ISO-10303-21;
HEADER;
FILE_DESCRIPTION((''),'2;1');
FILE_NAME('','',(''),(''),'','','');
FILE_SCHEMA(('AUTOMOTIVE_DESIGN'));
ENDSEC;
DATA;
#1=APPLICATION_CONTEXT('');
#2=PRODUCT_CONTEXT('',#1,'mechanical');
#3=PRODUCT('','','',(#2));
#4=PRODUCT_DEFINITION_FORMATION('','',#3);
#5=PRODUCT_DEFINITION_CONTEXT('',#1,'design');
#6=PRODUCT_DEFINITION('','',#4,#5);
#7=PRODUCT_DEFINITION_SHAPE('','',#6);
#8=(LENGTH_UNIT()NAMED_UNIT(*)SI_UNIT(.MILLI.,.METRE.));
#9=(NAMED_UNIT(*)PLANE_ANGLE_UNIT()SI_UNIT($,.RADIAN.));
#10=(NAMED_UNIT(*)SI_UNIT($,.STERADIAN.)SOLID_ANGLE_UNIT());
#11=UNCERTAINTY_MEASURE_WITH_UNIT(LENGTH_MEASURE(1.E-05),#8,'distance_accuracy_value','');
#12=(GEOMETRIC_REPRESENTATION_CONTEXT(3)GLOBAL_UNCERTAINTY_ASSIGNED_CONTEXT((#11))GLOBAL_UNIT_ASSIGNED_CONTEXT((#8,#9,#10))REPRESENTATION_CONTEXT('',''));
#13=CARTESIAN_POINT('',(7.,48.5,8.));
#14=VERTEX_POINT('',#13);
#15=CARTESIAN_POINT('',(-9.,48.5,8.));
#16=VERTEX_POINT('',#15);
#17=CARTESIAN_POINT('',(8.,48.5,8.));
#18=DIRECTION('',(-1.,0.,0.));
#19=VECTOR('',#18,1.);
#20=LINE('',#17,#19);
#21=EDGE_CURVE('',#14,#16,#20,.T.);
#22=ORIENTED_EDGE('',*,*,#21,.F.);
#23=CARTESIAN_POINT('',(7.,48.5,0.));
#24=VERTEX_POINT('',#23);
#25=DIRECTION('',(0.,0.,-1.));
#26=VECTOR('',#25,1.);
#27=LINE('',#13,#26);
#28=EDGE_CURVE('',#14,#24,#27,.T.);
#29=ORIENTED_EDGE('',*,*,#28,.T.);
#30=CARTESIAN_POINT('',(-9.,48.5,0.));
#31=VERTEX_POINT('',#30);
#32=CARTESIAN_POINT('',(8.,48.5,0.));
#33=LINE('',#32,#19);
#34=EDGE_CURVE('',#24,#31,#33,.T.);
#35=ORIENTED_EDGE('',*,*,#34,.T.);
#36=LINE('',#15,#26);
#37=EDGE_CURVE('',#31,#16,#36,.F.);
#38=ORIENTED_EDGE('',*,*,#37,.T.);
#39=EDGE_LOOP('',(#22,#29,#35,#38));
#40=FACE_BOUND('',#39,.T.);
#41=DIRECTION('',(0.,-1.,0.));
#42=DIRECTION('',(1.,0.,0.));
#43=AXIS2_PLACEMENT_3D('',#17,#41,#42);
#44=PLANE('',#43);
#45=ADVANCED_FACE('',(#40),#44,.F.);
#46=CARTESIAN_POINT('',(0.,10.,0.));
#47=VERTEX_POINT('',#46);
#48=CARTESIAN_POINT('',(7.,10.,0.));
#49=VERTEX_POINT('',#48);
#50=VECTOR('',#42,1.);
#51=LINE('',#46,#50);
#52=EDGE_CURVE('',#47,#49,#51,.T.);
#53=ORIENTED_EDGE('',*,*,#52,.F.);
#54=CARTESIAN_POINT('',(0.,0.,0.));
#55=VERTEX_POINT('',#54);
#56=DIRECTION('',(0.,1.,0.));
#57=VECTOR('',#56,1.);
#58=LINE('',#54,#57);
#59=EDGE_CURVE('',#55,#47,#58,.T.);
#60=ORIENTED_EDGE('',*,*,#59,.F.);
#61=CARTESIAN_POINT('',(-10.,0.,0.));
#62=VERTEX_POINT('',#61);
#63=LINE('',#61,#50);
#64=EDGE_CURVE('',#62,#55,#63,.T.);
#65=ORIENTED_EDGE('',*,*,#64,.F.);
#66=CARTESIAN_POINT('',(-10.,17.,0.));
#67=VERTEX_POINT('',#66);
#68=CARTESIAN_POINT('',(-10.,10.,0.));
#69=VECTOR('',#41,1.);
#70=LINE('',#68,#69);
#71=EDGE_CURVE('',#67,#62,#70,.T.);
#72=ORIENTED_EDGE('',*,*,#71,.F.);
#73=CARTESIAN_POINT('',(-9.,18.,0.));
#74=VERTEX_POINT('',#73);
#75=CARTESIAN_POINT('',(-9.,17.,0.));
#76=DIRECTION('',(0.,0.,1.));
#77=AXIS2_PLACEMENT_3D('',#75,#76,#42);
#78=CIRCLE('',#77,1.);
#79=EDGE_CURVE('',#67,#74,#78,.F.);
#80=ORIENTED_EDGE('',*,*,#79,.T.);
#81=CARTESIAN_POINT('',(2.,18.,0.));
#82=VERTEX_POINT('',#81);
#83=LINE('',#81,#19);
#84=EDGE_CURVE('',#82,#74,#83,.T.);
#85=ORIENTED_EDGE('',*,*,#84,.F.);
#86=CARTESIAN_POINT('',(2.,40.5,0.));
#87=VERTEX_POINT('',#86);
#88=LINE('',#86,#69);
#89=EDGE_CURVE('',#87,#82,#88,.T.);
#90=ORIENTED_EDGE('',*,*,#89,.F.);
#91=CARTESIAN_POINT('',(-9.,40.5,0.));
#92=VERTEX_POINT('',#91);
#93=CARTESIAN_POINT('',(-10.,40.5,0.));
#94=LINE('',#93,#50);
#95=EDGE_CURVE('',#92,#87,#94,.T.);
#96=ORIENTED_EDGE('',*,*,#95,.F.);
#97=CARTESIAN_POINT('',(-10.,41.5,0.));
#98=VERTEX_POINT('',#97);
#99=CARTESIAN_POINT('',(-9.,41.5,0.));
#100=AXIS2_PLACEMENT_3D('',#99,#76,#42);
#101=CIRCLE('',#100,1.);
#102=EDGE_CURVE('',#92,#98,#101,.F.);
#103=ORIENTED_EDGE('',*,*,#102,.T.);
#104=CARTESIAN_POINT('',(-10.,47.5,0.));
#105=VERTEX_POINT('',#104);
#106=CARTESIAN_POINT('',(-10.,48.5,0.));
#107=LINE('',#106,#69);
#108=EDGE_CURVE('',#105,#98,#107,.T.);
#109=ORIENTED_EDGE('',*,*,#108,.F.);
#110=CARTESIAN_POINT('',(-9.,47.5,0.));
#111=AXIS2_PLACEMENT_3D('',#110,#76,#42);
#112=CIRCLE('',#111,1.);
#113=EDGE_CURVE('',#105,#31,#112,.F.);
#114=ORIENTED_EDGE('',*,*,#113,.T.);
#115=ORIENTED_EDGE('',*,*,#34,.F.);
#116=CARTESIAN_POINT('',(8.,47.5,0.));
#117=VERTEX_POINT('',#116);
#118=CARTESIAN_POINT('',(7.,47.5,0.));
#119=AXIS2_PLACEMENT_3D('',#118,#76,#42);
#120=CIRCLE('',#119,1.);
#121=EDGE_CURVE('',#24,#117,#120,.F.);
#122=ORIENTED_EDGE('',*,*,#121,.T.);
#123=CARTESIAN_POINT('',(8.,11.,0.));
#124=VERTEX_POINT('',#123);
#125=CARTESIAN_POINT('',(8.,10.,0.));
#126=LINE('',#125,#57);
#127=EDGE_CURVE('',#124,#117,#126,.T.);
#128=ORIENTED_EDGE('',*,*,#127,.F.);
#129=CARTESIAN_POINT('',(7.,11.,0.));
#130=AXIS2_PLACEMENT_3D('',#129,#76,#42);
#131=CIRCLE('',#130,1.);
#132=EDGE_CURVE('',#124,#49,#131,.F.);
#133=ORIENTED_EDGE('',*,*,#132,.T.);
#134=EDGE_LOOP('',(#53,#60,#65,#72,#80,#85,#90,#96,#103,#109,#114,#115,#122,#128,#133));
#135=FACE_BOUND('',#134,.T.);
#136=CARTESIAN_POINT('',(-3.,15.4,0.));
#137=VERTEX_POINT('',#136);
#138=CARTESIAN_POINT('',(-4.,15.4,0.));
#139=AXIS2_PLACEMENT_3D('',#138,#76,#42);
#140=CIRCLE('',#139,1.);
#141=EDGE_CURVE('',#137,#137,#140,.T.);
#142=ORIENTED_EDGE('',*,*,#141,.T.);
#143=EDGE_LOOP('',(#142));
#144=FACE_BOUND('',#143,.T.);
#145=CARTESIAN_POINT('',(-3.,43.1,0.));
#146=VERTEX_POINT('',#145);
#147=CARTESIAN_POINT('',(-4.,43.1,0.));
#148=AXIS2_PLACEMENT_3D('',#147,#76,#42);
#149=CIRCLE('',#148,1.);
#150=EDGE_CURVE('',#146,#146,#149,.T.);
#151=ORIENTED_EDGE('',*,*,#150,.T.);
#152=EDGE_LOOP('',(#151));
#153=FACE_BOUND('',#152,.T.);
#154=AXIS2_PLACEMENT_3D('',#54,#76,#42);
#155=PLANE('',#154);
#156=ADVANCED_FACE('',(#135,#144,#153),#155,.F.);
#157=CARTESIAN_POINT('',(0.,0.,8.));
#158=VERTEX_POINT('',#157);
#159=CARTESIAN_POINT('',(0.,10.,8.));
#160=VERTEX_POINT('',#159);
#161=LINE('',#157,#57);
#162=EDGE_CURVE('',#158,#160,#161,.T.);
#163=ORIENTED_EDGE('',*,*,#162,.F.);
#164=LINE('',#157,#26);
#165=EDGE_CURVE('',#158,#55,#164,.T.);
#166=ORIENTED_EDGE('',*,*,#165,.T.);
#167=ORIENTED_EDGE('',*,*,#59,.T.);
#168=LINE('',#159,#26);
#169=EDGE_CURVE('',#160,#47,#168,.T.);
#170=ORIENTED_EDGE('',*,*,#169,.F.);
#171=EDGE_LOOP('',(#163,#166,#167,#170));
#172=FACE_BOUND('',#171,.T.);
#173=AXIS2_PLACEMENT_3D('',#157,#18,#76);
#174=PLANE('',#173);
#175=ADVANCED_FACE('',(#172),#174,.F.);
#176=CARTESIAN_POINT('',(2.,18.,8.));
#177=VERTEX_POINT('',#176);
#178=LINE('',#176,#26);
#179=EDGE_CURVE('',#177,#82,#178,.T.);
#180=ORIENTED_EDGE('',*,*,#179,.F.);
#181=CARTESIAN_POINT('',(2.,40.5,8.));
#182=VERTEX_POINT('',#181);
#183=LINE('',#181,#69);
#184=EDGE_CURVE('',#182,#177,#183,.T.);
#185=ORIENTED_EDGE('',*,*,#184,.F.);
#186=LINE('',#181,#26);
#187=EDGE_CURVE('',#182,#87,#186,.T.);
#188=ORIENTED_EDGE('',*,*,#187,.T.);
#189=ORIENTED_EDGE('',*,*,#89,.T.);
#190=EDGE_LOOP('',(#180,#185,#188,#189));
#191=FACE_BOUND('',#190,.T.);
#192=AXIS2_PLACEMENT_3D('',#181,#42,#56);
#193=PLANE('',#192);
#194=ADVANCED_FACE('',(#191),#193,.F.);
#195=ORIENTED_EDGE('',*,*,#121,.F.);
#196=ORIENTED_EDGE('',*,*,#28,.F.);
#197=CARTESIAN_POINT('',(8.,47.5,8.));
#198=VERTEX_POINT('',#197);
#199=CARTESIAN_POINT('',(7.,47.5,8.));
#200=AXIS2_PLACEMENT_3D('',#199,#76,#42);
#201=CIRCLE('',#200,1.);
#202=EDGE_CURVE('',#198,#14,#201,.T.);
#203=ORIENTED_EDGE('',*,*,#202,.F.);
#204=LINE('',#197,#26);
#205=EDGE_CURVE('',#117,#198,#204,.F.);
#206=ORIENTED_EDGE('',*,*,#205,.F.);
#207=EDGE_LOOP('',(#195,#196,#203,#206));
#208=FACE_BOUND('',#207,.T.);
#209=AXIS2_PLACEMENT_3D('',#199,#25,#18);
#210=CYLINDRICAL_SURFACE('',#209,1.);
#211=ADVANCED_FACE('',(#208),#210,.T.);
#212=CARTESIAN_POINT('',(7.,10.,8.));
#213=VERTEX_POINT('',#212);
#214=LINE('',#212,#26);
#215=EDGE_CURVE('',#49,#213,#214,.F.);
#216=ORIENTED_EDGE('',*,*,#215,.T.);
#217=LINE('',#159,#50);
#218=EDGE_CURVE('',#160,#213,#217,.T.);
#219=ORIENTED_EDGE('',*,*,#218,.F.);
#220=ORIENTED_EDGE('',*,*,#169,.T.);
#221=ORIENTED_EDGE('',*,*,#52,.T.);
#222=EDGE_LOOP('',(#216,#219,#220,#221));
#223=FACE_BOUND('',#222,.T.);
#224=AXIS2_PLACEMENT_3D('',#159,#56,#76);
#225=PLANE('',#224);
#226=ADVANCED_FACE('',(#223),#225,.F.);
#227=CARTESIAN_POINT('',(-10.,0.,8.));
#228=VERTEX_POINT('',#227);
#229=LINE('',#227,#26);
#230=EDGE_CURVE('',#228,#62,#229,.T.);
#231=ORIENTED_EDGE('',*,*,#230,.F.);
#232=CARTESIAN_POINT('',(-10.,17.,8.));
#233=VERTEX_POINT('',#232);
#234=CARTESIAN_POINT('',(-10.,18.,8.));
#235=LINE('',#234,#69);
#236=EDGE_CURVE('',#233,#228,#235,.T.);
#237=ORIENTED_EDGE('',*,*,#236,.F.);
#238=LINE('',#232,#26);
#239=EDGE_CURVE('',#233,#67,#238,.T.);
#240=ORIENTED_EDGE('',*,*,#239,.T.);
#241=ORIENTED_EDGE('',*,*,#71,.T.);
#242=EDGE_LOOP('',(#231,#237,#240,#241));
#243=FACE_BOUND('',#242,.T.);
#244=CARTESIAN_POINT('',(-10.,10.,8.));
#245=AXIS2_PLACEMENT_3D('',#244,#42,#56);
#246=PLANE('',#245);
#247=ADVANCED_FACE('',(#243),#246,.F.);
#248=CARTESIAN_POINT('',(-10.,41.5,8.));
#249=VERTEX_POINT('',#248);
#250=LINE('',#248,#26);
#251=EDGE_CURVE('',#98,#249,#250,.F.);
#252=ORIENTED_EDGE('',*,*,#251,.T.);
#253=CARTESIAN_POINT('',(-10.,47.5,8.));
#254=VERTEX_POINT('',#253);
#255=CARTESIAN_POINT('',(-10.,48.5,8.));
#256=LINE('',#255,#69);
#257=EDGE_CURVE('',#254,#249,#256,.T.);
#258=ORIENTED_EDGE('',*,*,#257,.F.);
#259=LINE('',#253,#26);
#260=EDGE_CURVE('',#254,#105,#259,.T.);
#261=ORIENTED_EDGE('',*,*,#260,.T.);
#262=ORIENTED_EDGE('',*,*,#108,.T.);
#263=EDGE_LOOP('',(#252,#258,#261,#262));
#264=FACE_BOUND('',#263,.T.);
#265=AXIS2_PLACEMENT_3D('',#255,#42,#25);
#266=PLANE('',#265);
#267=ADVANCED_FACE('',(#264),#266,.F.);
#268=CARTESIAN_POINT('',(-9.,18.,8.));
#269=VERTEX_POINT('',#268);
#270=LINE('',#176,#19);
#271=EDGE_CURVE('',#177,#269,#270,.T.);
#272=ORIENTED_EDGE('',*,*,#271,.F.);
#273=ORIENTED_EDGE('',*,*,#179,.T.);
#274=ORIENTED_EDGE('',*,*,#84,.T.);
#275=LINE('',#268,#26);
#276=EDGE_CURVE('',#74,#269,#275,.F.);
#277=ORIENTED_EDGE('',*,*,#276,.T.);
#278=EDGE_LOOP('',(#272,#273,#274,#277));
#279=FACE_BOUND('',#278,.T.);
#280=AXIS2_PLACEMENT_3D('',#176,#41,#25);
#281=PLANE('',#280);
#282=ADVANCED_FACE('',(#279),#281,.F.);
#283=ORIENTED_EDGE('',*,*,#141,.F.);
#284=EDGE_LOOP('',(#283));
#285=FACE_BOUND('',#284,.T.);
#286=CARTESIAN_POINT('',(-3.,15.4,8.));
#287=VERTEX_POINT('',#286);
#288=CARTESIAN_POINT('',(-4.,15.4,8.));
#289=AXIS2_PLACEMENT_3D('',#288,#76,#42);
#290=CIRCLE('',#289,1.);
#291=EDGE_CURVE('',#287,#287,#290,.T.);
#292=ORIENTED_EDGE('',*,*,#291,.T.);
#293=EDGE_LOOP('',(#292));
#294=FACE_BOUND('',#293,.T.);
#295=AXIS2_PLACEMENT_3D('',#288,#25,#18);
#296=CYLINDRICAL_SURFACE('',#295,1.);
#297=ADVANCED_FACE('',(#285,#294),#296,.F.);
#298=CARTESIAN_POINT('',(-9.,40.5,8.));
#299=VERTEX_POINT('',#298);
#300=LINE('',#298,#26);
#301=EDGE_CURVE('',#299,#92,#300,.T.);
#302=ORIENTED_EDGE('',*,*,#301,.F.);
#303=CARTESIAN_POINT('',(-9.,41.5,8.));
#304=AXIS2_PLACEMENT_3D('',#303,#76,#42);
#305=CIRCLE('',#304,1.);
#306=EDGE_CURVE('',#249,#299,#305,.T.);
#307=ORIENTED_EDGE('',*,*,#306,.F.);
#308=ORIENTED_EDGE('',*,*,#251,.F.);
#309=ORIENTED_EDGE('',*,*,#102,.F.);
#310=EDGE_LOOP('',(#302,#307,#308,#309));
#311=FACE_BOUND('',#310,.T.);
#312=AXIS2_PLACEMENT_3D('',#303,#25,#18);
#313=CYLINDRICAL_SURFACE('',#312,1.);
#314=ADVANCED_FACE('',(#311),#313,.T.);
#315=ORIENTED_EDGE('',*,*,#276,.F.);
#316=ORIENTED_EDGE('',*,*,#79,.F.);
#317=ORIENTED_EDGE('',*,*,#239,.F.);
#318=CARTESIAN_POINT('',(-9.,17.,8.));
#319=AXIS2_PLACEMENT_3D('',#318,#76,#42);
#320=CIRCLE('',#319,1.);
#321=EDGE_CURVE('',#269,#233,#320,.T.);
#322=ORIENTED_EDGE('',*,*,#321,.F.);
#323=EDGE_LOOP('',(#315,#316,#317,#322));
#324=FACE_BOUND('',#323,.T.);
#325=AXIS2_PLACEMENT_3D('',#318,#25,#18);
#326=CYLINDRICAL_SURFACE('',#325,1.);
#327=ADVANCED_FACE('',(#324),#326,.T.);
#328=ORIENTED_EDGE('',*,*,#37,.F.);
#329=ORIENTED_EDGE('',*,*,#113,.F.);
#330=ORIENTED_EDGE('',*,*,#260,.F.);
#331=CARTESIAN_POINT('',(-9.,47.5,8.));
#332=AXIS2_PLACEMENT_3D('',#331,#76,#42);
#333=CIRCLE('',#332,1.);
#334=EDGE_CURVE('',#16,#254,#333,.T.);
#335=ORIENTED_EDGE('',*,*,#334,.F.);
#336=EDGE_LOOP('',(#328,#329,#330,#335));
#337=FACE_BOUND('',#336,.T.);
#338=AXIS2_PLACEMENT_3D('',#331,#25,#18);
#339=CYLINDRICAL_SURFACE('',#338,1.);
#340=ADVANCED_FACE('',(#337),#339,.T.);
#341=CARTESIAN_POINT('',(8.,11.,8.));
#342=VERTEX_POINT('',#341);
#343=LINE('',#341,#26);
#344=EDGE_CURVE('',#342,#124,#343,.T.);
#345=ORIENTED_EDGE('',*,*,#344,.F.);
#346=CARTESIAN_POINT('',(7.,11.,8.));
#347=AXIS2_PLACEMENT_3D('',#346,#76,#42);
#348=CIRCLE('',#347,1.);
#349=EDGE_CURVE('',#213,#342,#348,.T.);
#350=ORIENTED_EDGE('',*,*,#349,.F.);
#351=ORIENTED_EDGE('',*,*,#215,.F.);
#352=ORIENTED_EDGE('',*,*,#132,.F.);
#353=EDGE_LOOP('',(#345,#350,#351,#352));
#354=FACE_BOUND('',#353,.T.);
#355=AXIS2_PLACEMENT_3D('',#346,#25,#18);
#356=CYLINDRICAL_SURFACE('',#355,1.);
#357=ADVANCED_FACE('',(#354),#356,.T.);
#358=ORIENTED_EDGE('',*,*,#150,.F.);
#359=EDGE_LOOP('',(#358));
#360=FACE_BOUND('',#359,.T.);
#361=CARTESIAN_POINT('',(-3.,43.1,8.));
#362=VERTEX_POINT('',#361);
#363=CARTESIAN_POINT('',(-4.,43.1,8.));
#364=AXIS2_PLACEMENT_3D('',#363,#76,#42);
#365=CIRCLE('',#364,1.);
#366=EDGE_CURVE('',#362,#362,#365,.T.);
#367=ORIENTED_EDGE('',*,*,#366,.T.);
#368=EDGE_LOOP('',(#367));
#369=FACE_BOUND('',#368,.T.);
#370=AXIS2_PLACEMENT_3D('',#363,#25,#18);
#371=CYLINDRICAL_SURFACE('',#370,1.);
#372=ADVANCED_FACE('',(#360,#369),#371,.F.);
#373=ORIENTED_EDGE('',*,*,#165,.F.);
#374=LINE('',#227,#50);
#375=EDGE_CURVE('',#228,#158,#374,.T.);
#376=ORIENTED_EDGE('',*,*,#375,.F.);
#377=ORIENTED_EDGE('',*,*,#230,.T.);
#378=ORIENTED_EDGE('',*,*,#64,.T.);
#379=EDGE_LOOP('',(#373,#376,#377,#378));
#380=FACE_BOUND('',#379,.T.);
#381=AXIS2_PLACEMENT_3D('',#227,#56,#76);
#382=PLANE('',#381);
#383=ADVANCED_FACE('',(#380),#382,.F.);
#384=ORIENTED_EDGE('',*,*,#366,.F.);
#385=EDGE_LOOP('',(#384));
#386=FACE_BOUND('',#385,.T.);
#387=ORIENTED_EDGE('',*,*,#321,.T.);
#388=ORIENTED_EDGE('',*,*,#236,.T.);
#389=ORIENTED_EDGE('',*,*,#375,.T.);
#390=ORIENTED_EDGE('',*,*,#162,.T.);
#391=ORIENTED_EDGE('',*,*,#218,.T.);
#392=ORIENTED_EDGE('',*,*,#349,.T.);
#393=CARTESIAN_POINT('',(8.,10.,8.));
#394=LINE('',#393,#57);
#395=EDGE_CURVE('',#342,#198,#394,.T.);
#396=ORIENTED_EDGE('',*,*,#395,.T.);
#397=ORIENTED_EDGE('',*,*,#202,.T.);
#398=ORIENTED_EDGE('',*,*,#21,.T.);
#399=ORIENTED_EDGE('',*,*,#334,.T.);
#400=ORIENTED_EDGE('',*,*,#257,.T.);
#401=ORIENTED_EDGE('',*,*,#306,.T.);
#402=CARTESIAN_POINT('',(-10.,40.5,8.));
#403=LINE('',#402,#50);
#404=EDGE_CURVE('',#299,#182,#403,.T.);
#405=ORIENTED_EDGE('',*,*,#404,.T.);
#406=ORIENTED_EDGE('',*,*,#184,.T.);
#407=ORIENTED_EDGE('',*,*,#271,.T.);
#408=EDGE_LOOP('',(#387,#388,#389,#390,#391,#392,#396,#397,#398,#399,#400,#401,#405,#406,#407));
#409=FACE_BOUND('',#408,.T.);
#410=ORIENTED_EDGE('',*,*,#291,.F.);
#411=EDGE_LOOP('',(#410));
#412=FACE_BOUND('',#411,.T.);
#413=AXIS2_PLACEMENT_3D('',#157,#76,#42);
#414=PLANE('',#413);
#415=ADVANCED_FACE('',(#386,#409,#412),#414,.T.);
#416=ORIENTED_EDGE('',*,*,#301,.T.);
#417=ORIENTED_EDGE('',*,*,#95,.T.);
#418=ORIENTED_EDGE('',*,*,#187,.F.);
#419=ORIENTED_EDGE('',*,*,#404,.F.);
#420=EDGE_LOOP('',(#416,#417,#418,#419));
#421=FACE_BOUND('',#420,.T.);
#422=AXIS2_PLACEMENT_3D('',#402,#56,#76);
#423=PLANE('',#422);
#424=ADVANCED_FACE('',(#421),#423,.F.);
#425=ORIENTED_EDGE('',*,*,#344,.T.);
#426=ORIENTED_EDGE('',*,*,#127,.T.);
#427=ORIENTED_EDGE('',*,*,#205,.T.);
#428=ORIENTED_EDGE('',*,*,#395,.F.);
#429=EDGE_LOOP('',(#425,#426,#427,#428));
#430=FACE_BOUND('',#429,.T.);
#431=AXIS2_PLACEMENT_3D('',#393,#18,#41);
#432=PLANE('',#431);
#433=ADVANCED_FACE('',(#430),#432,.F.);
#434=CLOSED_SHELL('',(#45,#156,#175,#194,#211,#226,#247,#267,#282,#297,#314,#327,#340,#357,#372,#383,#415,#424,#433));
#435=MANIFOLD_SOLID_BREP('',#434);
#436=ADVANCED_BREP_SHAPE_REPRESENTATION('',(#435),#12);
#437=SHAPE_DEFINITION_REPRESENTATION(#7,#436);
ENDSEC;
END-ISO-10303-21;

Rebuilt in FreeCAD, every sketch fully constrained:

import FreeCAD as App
import Part
import Sketcher
Q = App.Units.Quantity


def edges_at(feature, points):
    """Names of the edges that pass closest to the given points."""
    edges = feature.Shape.Edges
    near = lambda p: min(range(len(edges)), key=lambda i: edges[i].distToShape(Part.Vertex(*p))[0])
    return sorted({f"Edge{near(p) + 1}" for p in points})

doc = App.newDocument("Part")
body = doc.addObject("PartDesign::Body", "Body")

# Sketch on XY plane
sketch1 = body.newObject("Sketcher::SketchObject", "Sketch")
sketch1.AttachmentSupport = (doc.getObject("XY_Plane"), [""])
sketch1.MapMode = "FlatFace"
sketch1.addGeometry([
    Part.LineSegment(App.Vector(0, 0, 0), App.Vector(0, 10, 0)),  # 0
    Part.LineSegment(App.Vector(0, 10, 0), App.Vector(8, 10, 0)),  # 1
    Part.LineSegment(App.Vector(8, 10, 0), App.Vector(8, 48.5, 0)),  # 2
    Part.LineSegment(App.Vector(8, 48.5, 0), App.Vector(-10, 48.5, 0)),  # 3
    Part.LineSegment(App.Vector(-10, 48.5, 0), App.Vector(-10, 40.5, 0)),  # 4
    Part.LineSegment(App.Vector(-10, 40.5, 0), App.Vector(2, 40.5, 0)),  # 5
    Part.LineSegment(App.Vector(2, 40.5, 0), App.Vector(2, 18, 0)),  # 6
    Part.LineSegment(App.Vector(2, 18, 0), App.Vector(-10, 18, 0)),  # 7
    Part.LineSegment(App.Vector(-10, 18, 0), App.Vector(-10, 0, 0)),  # 8
    Part.LineSegment(App.Vector(-10, 0, 0), App.Vector(0, 0, 0)),  # 9
    Part.Circle(App.Vector(-4, 15.4, 0), App.Vector(0, 0, 1), 1),  # 10
    Part.Circle(App.Vector(-4, 43.1, 0), App.Vector(0, 0, 1), 1),  # 11
], False)
sketch1.addConstraint([
    Sketcher.Constraint("Coincident", 0, 2, 1, 1),
    Sketcher.Constraint("Coincident", 1, 2, 2, 1),
    Sketcher.Constraint("Coincident", 2, 2, 3, 1),
    Sketcher.Constraint("Coincident", 3, 2, 4, 1),
    Sketcher.Constraint("Coincident", 4, 2, 5, 1),
    Sketcher.Constraint("Coincident", 5, 2, 6, 1),
    Sketcher.Constraint("Coincident", 6, 2, 7, 1),
    Sketcher.Constraint("Coincident", 7, 2, 8, 1),
    Sketcher.Constraint("Coincident", 8, 2, 9, 1),
    Sketcher.Constraint("Coincident", 9, 2, 0, 1),
    Sketcher.Constraint("Vertical", 0),
    Sketcher.Constraint("Horizontal", 1),
    Sketcher.Constraint("Vertical", 2),
    Sketcher.Constraint("Horizontal", 3),
    Sketcher.Constraint("Vertical", 4),
    Sketcher.Constraint("Horizontal", 5),
    Sketcher.Constraint("Vertical", 6),
    Sketcher.Constraint("Horizontal", 7),
    Sketcher.Constraint("Vertical", 8),
    Sketcher.Constraint("Horizontal", 9),
    Sketcher.Constraint("Coincident", 9, 2, -1, 1),
    Sketcher.Constraint("Equal", 10, 11),
    Sketcher.Constraint("Vertical", 10, 3, 11, 3),
    Sketcher.Constraint("Vertical", 4, 2, 7, 2),
    Sketcher.Constraint("Equal", 9, 0),
    Sketcher.Constraint("Equal", 1, 4),
    Sketcher.Constraint("Equal", 3, 8),
    Sketcher.Constraint("Diameter", 10, Q("2 mm")),
    Sketcher.Constraint("DistanceX", 1, 1, 1, 2, Q("8 mm")),
    Sketcher.Constraint("DistanceX", 3, 2, 3, 1, Q("18 mm")),
    Sketcher.Constraint("DistanceX", 5, 1, 5, 2, Q("12 mm")),
    Sketcher.Constraint("DistanceY", 2, 1, 2, 2, Q("38.5 mm")),
    Sketcher.Constraint("DistanceX", 10, 3, -1, 1, Q("4 mm")),
    Sketcher.Constraint("DistanceY", -1, 1, 10, 3, Q("15.4 mm")),
    Sketcher.Constraint("DistanceY", -1, 1, 11, 3, Q("43.1 mm")),
])
pad1 = body.newObject("PartDesign::Pad", "Pad")
pad1.Profile = sketch1
pad1.Length = 8
doc.recompute()

fillet = body.newObject("PartDesign::Fillet", "Fillet")
fillet.Base = (pad1, edges_at(pad1, [
    (-10, 18, 4),
    (-10, 40.5, 4),
    (-10, 48.5, 4),
    (8, 48.5, 4),
    (8, 10, 4),
]))
fillet.Radius = 1

doc.recompute()
